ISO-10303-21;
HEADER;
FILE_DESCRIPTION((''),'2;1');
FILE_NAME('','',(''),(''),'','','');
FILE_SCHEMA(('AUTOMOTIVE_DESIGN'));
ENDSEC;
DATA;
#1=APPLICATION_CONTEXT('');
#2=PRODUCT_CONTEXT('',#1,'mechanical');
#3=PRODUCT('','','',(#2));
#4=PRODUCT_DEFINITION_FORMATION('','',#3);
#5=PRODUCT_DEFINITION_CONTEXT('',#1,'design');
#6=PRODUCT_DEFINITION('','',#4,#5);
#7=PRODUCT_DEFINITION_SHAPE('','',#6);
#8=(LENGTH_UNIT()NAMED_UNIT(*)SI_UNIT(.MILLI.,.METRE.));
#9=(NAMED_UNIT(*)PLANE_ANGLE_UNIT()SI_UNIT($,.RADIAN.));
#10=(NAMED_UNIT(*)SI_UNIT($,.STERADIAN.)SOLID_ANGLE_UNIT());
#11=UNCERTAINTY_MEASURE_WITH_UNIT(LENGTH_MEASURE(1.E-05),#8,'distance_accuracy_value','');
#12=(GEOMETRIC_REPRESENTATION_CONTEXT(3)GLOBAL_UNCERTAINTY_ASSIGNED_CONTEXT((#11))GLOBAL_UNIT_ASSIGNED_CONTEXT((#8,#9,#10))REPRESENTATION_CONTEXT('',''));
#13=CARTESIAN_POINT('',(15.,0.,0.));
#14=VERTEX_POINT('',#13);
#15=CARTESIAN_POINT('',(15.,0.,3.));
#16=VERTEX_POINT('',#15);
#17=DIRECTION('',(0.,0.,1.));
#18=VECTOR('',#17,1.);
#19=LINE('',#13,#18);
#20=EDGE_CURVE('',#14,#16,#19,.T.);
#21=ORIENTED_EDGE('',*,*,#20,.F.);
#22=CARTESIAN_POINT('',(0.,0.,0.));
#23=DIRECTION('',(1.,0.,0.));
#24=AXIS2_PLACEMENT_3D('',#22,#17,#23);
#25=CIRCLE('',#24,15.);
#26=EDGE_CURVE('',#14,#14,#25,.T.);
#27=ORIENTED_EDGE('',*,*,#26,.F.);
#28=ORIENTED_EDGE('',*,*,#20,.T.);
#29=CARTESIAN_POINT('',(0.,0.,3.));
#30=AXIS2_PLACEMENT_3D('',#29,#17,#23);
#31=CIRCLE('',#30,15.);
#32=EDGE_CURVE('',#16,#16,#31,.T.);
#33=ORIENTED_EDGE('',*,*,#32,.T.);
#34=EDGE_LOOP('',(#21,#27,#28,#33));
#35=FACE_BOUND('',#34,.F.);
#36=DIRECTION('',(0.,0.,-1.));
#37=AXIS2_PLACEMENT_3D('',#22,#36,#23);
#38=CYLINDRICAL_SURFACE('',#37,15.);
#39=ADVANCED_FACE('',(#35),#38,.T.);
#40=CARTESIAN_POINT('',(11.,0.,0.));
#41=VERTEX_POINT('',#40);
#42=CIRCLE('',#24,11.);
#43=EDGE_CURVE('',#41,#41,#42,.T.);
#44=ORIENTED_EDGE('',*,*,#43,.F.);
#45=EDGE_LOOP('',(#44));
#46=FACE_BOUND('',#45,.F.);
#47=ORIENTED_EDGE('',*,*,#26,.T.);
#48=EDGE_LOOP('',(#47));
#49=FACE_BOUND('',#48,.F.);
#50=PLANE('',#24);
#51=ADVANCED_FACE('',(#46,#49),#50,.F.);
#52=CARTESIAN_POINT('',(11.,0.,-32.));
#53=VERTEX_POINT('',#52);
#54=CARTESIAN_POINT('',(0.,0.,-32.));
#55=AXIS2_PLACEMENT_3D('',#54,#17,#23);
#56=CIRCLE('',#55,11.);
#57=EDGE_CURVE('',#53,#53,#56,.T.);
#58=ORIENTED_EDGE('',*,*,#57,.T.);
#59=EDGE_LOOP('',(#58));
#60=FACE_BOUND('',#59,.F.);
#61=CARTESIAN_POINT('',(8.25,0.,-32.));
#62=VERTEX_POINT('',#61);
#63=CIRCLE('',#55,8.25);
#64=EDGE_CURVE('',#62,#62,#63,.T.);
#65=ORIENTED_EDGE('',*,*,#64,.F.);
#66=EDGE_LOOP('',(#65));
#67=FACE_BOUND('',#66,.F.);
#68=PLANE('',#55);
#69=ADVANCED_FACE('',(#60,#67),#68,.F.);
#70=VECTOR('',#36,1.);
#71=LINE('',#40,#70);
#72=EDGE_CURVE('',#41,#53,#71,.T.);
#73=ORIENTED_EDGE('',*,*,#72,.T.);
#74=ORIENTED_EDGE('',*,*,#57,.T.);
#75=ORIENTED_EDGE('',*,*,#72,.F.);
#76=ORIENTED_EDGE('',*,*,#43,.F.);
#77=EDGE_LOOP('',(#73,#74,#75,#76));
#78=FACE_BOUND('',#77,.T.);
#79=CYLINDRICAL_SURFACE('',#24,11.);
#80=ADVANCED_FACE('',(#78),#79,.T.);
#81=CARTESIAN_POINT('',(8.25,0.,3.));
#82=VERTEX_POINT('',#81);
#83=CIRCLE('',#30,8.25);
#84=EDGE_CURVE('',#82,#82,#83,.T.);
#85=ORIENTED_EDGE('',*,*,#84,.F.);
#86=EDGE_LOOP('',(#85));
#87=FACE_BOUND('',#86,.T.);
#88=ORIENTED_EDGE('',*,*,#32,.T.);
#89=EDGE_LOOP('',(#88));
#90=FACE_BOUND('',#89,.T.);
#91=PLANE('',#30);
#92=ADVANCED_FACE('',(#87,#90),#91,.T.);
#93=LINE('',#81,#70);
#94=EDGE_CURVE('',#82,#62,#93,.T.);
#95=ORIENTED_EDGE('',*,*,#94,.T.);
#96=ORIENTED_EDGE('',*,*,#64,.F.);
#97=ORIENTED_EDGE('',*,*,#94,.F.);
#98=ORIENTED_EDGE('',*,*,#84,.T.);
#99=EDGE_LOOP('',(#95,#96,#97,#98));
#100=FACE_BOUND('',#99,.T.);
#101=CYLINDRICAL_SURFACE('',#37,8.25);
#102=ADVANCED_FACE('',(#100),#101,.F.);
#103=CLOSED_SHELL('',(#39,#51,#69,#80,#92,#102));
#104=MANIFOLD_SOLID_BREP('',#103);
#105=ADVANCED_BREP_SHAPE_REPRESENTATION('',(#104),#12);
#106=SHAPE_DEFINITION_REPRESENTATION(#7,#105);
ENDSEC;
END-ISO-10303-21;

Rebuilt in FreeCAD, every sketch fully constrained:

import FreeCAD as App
import Part
import Sketcher

V = App.Vector
Q = App.Units.Quantity

doc = App.newDocument("Part")
body = doc.addObject("PartDesign::Body", "Body")

sketch1 = doc.addObject("Sketcher::SketchObject", "Sketch")
body.addObject(sketch1)
sketch1.AttachmentSupport = (doc.XY_Plane, [""])
sketch1.MapMode = "FlatFace"
sketch1.addGeometry(Part.Circle(V(0, 0, 0), V(0, 0, 1), 11), False)
sketch1.addGeometry(Part.Circle(V(0, 0, 0), V(0, 0, 1), 8), False)
sketch1.addConstraint(Sketcher.Constraint("Coincident", 0, 3, -1, 1))
sketch1.addConstraint(Sketcher.Constraint("Coincident", 1, 3, -1, 1))
sketch1.addConstraint(Sketcher.Constraint("Diameter", 0, Q("22 mm")))
sketch1.addConstraint(Sketcher.Constraint("Diameter", 1, Q("16.5 mm")))
pad1 = doc.addObject("PartDesign::Pad", "Pad")
body.addObject(pad1)
pad1.Profile = sketch1
pad1.Length = 32
pad1.Reversed = True

sketch2 = doc.addObject("Sketcher::SketchObject", "Sketch001")
body.addObject(sketch2)
sketch2.AttachmentSupport = (doc.XY_Plane, [""])
sketch2.MapMode = "FlatFace"
sketch2.addGeometry(Part.Circle(V(0, 0, 0), V(0, 0, 1), 15), False)
sketch2.addGeometry(Part.Circle(V(0, 0, 0), V(0, 0, 1), 8), False)
sketch2.addConstraint(Sketcher.Constraint("Coincident", 0, 3, -1, 1))
sketch2.addConstraint(Sketcher.Constraint("Coincident", 1, 3, -1, 1))
sketch2.addConstraint(Sketcher.Constraint("Diameter", 0, Q("30 mm")))
sketch2.addConstraint(Sketcher.Constraint("Diameter", 1, Q("16.5 mm")))
pad2 = doc.addObject("PartDesign::Pad", "Pad001")
body.addObject(pad2)
pad2.Profile = sketch2
pad2.Length = 3

doc.recompute()
